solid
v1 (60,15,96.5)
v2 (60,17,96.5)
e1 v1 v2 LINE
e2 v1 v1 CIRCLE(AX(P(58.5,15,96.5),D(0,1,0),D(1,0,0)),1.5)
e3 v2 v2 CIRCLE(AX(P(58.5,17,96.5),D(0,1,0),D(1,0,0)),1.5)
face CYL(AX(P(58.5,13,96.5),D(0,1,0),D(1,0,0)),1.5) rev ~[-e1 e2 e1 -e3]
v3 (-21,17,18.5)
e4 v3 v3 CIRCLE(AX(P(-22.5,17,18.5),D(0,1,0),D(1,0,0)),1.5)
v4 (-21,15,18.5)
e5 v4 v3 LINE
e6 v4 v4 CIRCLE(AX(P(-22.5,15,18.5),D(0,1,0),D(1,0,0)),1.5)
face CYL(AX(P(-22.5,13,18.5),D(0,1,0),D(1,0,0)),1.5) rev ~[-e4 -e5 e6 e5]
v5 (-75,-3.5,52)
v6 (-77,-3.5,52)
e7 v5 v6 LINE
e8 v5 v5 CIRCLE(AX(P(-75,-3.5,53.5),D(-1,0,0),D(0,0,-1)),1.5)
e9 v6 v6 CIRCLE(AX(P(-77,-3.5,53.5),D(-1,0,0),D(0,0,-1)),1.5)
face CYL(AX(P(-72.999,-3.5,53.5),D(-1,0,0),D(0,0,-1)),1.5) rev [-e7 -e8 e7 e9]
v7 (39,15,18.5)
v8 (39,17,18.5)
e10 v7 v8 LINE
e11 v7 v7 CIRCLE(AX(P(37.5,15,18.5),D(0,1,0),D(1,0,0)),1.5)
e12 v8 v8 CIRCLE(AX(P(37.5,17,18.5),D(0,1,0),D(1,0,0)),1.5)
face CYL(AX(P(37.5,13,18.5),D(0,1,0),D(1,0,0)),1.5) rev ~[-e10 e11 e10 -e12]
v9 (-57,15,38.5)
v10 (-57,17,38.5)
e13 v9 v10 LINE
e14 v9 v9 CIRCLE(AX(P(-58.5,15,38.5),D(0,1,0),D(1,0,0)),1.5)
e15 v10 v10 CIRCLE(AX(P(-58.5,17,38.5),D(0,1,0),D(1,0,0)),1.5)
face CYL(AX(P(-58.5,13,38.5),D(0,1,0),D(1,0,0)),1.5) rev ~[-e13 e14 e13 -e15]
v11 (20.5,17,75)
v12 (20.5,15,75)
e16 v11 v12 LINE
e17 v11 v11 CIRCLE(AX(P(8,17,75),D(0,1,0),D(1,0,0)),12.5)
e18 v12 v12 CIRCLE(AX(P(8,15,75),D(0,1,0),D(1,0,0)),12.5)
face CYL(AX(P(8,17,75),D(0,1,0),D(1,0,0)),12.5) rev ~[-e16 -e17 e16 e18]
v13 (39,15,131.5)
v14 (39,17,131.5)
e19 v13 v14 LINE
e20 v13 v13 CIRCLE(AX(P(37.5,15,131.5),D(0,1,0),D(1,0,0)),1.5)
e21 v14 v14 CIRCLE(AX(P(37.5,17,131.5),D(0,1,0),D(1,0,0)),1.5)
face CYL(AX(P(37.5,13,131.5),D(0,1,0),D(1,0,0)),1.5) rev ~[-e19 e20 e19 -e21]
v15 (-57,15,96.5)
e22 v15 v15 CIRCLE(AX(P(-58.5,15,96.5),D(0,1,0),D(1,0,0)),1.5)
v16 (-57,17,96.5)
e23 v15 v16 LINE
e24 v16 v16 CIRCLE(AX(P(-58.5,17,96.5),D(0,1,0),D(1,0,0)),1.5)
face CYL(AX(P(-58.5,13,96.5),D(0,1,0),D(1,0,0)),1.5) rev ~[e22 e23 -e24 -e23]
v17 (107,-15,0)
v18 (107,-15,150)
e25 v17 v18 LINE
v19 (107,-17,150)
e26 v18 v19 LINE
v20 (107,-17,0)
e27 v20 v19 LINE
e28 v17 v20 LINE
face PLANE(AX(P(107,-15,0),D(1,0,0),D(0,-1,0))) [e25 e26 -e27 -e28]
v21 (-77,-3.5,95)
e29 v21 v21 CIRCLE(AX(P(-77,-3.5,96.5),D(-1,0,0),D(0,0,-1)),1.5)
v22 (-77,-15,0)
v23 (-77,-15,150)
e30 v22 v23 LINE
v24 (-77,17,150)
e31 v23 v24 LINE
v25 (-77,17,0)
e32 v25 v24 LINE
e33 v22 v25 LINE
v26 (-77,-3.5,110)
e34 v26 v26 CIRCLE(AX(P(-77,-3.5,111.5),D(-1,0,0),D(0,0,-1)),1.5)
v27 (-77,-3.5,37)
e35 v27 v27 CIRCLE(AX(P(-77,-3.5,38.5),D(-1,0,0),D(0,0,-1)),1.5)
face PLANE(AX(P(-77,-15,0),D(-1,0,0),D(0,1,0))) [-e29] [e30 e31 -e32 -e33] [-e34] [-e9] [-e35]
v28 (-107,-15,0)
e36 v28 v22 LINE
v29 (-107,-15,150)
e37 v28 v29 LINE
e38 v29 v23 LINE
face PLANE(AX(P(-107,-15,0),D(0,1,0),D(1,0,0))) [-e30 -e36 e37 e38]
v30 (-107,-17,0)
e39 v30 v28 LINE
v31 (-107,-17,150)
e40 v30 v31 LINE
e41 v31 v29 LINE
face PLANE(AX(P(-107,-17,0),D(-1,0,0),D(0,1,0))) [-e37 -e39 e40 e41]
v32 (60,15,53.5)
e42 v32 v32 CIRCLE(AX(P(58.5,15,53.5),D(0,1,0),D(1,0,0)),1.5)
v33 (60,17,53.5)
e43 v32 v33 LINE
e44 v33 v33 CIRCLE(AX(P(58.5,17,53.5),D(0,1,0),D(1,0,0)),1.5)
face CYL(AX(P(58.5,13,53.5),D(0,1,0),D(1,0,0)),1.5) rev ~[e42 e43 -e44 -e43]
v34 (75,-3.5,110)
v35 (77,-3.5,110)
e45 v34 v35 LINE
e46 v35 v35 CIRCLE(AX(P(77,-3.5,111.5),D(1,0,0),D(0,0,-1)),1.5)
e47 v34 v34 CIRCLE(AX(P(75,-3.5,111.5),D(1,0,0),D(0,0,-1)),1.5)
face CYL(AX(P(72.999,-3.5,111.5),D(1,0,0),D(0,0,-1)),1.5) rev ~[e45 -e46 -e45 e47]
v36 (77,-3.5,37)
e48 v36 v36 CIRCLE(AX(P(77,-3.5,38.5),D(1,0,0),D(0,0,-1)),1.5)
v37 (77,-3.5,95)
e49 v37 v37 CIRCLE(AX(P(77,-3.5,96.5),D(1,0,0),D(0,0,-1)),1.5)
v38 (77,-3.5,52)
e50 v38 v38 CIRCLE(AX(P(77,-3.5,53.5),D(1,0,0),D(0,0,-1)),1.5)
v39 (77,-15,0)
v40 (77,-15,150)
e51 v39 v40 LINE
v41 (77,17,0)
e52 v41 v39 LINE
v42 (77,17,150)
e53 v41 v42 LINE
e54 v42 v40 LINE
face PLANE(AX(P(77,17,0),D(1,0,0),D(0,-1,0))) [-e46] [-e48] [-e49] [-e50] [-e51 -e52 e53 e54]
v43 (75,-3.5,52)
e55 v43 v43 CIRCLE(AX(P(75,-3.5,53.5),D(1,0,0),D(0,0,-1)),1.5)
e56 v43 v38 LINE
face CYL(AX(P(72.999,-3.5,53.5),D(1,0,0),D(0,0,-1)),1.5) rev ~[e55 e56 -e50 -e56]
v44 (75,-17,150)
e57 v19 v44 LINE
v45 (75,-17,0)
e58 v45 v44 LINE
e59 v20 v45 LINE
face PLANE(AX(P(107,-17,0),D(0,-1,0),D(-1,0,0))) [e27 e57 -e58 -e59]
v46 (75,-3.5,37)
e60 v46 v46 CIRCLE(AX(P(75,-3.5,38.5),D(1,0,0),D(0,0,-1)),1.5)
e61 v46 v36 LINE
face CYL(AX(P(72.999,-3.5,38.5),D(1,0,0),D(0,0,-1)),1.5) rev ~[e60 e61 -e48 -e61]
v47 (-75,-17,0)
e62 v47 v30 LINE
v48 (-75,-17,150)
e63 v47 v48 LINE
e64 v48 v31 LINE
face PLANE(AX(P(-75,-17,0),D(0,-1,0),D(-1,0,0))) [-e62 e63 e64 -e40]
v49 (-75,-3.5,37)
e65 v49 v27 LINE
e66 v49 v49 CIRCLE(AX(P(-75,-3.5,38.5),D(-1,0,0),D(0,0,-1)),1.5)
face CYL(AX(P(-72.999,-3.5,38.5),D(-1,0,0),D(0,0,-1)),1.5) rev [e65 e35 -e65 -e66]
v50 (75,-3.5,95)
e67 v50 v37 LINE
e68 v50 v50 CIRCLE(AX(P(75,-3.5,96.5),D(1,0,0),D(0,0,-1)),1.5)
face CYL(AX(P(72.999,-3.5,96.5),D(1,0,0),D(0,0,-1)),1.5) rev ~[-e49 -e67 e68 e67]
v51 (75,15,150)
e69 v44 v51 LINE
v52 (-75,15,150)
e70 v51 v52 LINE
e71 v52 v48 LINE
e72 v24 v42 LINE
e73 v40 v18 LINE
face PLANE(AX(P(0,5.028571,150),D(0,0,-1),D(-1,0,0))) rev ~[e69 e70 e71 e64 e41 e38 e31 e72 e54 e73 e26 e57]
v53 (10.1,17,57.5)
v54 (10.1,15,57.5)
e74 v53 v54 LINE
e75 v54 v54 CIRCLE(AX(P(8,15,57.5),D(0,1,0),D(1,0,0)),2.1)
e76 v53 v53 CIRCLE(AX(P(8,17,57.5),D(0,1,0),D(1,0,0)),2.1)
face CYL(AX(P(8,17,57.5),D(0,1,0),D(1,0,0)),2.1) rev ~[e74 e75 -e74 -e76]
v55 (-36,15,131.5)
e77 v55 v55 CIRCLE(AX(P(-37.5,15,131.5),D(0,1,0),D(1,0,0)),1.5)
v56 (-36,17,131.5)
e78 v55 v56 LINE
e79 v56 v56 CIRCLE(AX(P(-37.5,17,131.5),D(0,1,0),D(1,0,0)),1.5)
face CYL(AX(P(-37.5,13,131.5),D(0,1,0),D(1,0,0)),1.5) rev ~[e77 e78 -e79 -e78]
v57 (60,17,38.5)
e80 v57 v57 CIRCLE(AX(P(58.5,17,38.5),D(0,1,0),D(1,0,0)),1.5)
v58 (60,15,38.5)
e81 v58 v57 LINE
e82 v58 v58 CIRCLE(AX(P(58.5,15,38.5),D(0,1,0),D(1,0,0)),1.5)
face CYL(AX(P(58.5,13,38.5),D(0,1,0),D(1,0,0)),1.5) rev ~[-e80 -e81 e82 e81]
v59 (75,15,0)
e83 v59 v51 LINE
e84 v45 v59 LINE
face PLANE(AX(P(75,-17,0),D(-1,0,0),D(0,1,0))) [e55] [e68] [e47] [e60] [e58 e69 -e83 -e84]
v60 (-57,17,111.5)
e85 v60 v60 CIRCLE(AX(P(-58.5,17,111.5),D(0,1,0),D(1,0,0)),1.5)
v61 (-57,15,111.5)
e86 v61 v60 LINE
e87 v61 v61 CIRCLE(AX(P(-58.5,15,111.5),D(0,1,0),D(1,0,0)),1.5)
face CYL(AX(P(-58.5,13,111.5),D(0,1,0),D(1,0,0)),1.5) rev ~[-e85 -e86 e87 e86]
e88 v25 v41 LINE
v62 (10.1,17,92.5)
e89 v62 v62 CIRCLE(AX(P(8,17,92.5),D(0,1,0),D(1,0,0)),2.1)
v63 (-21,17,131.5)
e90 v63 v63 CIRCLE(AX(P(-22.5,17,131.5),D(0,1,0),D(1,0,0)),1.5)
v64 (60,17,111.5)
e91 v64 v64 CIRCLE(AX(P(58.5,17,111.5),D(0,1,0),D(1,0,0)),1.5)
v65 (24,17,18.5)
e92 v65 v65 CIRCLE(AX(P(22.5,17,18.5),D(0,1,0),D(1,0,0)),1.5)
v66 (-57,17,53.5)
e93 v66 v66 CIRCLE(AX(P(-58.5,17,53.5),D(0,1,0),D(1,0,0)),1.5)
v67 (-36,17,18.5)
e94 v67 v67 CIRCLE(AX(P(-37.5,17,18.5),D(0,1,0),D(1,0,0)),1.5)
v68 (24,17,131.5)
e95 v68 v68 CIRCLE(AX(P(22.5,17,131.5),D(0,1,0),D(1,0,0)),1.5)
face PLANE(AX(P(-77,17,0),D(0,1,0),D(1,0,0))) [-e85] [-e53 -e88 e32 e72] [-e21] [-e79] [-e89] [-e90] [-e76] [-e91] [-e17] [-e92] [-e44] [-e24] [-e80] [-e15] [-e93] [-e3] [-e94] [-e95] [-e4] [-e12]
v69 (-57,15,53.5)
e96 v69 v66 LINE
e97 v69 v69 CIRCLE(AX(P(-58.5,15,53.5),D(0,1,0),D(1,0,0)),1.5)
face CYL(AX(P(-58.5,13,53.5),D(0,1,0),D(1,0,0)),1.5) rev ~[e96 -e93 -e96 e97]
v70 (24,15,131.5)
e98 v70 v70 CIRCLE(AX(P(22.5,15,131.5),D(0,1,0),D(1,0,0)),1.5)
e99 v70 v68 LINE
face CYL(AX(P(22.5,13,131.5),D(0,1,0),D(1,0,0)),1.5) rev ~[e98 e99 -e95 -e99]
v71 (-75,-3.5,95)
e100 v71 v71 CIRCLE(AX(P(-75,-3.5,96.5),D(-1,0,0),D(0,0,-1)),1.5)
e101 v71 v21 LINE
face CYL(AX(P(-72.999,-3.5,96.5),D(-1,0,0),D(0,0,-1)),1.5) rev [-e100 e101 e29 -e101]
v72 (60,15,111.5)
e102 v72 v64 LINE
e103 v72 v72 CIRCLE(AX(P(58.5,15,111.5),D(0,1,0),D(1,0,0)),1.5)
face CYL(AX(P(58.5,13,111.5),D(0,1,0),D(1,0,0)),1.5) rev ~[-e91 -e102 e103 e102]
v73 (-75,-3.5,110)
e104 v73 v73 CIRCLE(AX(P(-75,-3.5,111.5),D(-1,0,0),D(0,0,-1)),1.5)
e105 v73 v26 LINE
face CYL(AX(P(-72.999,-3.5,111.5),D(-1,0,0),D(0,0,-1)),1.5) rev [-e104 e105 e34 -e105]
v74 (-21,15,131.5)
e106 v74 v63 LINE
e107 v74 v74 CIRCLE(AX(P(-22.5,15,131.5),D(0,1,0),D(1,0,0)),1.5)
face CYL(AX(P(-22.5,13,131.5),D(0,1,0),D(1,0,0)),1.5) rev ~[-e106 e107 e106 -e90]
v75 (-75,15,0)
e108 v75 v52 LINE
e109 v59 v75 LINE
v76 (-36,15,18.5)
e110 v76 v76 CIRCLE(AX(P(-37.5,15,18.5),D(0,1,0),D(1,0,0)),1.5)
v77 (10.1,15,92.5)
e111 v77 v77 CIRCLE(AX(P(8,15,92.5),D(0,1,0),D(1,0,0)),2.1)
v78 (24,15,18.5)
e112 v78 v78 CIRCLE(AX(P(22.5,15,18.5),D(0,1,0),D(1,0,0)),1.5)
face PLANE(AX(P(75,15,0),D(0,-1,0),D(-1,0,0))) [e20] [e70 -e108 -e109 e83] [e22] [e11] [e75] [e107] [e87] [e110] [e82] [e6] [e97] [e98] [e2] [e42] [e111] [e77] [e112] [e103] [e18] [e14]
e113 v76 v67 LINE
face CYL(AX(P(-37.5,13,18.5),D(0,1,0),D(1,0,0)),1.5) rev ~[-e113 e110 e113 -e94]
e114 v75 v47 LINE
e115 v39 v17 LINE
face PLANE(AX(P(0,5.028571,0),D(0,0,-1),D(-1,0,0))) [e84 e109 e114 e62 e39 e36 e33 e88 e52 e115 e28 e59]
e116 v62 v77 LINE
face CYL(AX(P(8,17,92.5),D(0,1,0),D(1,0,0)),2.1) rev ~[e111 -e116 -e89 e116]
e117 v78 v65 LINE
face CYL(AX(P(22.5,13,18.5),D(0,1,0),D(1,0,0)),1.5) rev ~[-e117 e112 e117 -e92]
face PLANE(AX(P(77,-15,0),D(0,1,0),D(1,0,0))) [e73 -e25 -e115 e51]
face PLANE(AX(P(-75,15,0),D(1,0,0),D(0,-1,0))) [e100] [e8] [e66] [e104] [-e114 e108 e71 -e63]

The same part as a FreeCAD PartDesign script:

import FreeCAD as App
import Part
import Sketcher


def add_polygon(sketch, points):
    """Adds a closed chain of lines whose ends are joined by coincident constraints."""
    first, n = sketch.GeometryCount, len(points)
    for a, b in zip(points, points[1:] + points[:1]):
        sketch.addGeometry(Part.LineSegment(App.Vector(*a, 0), App.Vector(*b, 0)), False)
    for i in range(n):
        sketch.addConstraint(Sketcher.Constraint("Coincident", first + i, 2, first + (i + 1) % n, 1))

doc = App.newDocument("Part")
params = doc.addObject("Spreadsheet::Sheet", "Params")
for row, (alias, value) in enumerate([
    ("sketch1_width", "154 mm"),
    ("sketch1_width2", "30 mm"),
    ("sketch1_width3", "32 mm"),
    ("sketch1_height", "2 mm"),
    ("pad1_length", "150 mm"),
    ("sketch2_diameter", "25 mm"),
    ("sketch3_diameter", "4.2 mm"),
    ("sketch4_diameter", "4.2 mm"),
    ("sketch5_diameter", "3 mm"),
    ("hole_diameter", "3 mm"),
    ("hole_depth", "2 mm"),
    ("sketch6_diameter", "3 mm"),
    ("hole2_diameter", "3 mm"),
    ("hole2_depth", "2.001 mm"),
], start=1):
    params.set(f"A{row}", alias)
    params.set(f"B{row}", "=" + value)
    params.setAlias(f"B{row}", alias)

body = doc.addObject("PartDesign::Body", "Body")

# Sketch on XY plane
sketch1 = body.newObject("Sketcher::SketchObject", "Sketch")
sketch1.AttachmentSupport = (doc.getObject("XY_Plane"), [""])
sketch1.MapMode = "FlatFace"
add_polygon(sketch1, [(77, 17), (-77, 17), (-77, -15), (-107, -15), (-107, -17), (-75, -17), (-75, 15), (75, 15), (75, -17), (107, -17), (107, -15), (77, -15)])  # lines 0-11
sketch1.addConstraint(Sketcher.Constraint("Horizontal", 0))
sketch1.addConstraint(Sketcher.Constraint("Vertical", 1))
sketch1.addConstraint(Sketcher.Constraint("Horizontal", 2))
sketch1.addConstraint(Sketcher.Constraint("Vertical", 3))
sketch1.addConstraint(Sketcher.Constraint("Horizontal", 4))
sketch1.addConstraint(Sketcher.Constraint("Vertical", 5))
sketch1.addConstraint(Sketcher.Constraint("Horizontal", 6))
sketch1.addConstraint(Sketcher.Constraint("Vertical", 7))
sketch1.addConstraint(Sketcher.Constraint("Horizontal", 8))
sketch1.addConstraint(Sketcher.Constraint("Vertical", 9))
sketch1.addConstraint(Sketcher.Constraint("Horizontal", 10))
sketch1.addConstraint(Sketcher.Constraint("Vertical", 11))
sketch1.addConstraint(Sketcher.Constraint("Symmetric", 4, 2, 7, 2, -2))
sketch1.addConstraint(Sketcher.Constraint("Symmetric", 2, 2, 9, 2, -2))
sketch1.addConstraint(Sketcher.Constraint("Equal", 2, 10))
sketch1.addConstraint(Sketcher.Constraint("Equal", 8, 1))
sketch1.addConstraint(Sketcher.Constraint("Equal", 1, 5))
sketch1.addConstraint(Sketcher.Constraint("DistanceX", 0, 2, 0, 1, 154.0))
sketch1.addConstraint(Sketcher.Constraint("DistanceX", 2, 2, 2, 1, 30.0))
sketch1.addConstraint(Sketcher.Constraint("DistanceX", 4, 1, 4, 2, 32.0))
sketch1.addConstraint(Sketcher.Constraint("DistanceY", 3, 2, 3, 1, 2.0))
sketch1.addConstraint(Sketcher.Constraint("DistanceY", -1, 1, 0, 2, 17.0))
sketch1.setExpression("Constraints[29]", "Params.sketch1_width")
sketch1.setExpression("Constraints[30]", "Params.sketch1_width2")
sketch1.setExpression("Constraints[31]", "Params.sketch1_width3")
sketch1.setExpression("Constraints[32]", "Params.sketch1_height")
pad1 = body.newObject("PartDesign::Pad", "Pad")
pad1.Profile = sketch1
pad1.setExpression("Length", "Params.pad1_length")

# Sketch on XZ plane
sketch2 = body.newObject("Sketcher::SketchObject", "Sketch001")
sketch2.AttachmentSupport = (doc.getObject("XZ_Plane"), [""])
sketch2.MapMode = "FlatFace"
sketch2.AttachmentOffset = App.Placement(App.Vector(0, 0, -17), App.Rotation())
sketch2.addGeometry(Part.Circle(App.Vector(8, 75, 0), App.Vector(0, 0, 1), 12), False)
sketch2.addConstraint(Sketcher.Constraint("Diameter", 0, 25.0))
sketch2.addConstraint(Sketcher.Constraint("DistanceX", -1, 1, 0, 3, 8.0))
sketch2.addConstraint(Sketcher.Constraint("DistanceY", -1, 1, 0, 3, 75.0))
sketch2.setExpression("Constraints[0]", "Params.sketch2_diameter")
pocket1 = body.newObject("PartDesign::Pocket", "Pocket")
pocket1.Profile = sketch2
pocket1.Type = "UpToFirst"
pocket1.Reversed = True

# Sketch on XZ plane
sketch3 = body.newObject("Sketcher::SketchObject", "Sketch002")
sketch3.AttachmentSupport = (doc.getObject("XZ_Plane"), [""])
sketch3.MapMode = "FlatFace"
sketch3.AttachmentOffset = App.Placement(App.Vector(0, 0, -17), App.Rotation())
sketch3.addGeometry(Part.Circle(App.Vector(8, 57.5, 0), App.Vector(0, 0, 1), 2.1), False)
sketch3.addConstraint(Sketcher.Constraint("Diameter", 0, 4.2))
sketch3.addConstraint(Sketcher.Constraint("DistanceX", -1, 1, 0, 3, 8.0))
sketch3.addConstraint(Sketcher.Constraint("DistanceY", -1, 1, 0, 3, 57.5))
sketch3.setExpression("Constraints[0]", "Params.sketch3_diameter")
pocket2 = body.newObject("PartDesign::Pocket", "Pocket001")
pocket2.Profile = sketch3
pocket2.Type = "UpToFirst"
pocket2.Reversed = True

# Sketch on XZ plane
sketch4 = body.newObject("Sketcher::SketchObject", "Sketch003")
sketch4.AttachmentSupport = (doc.getObject("XZ_Plane"), [""])
sketch4.MapMode = "FlatFace"
sketch4.AttachmentOffset = App.Placement(App.Vector(0, 0, -17), App.Rotation())
sketch4.addGeometry(Part.Circle(App.Vector(8, 92.5, 0), App.Vector(0, 0, 1), 2.1), False)
sketch4.addConstraint(Sketcher.Constraint("Diameter", 0, 4.2))
sketch4.addConstraint(Sketcher.Constraint("DistanceX", -1, 1, 0, 3, 8.0))
sketch4.addConstraint(Sketcher.Constraint("DistanceY", -1, 1, 0, 3, 92.5))
sketch4.setExpression("Constraints[0]", "Params.sketch4_diameter")
pocket3 = body.newObject("PartDesign::Pocket", "Pocket002")
pocket3.Profile = sketch4
pocket3.Type = "UpToFirst"
pocket3.Reversed = True

# Sketch on XZ plane
sketch5 = body.newObject("Sketcher::SketchObject", "Sketch004")
sketch5.AttachmentSupport = (doc.getObject("XZ_Plane"), [""])
sketch5.MapMode = "FlatFace"
sketch5.AttachmentOffset = App.Placement(App.Vector(0, 0, -15), App.Rotation())
sketch5.addGeometry(Part.Circle(App.Vector(-58.5, 111.5, 0), App.Vector(0, 0, 1), 1.5), False)
sketch5.addGeometry(Part.Circle(App.Vector(-58.5, 96.5, 0), App.Vector(0, 0, 1), 1.5), False)
sketch5.addGeometry(Part.Circle(App.Vector(-37.5, 131.5, 0), App.Vector(0, 0, 1), 1.5), False)
sketch5.addGeometry(Part.Circle(App.Vector(-22.5, 131.5, 0), App.Vector(0, 0, 1), 1.5), False)
sketch5.addGeometry(Part.Circle(App.Vector(22.5, 131.5, 0), App.Vector(0, 0, 1), 1.5), False)
sketch5.addGeometry(Part.Circle(App.Vector(37.5, 131.5, 0), App.Vector(0, 0, 1), 1.5), False)
sketch5.addGeometry(Part.Circle(App.Vector(58.5, 111.5, 0), App.Vector(0, 0, 1), 1.5), False)
sketch5.addGeometry(Part.Circle(App.Vector(58.5, 96.5, 0), App.Vector(0, 0, 1), 1.5), False)
sketch5.addGeometry(Part.Circle(App.Vector(58.5, 53.5, 0), App.Vector(0, 0, 1), 1.5), False)
sketch5.addGeometry(Part.Circle(App.Vector(58.5, 38.5, 0), App.Vector(0, 0, 1), 1.5), False)
sketch5.addGeometry(Part.Circle(App.Vector(37.5, 18.5, 0), App.Vector(0, 0, 1), 1.5), False)
sketch5.addGeometry(Part.Circle(App.Vector(22.5, 18.5, 0), App.Vector(0, 0, 1), 1.5), False)
sketch5.addGeometry(Part.Circle(App.Vector(-22.5, 18.5, 0), App.Vector(0, 0, 1), 1.5), False)
sketch5.addGeometry(Part.Circle(App.Vector(-37.5, 18.5, 0), App.Vector(0, 0, 1), 1.5), False)
sketch5.addGeometry(Part.Circle(App.Vector(-58.5, 53.5, 0), App.Vector(0, 0, 1), 1.5), False)
sketch5.addGeometry(Part.Circle(App.Vector(-58.5, 38.5, 0), App.Vector(0, 0, 1), 1.5), False)
sketch5.addConstraint(Sketcher.Constraint("Equal", 0, 1))
sketch5.addConstraint(Sketcher.Constraint("Equal", 1, 2))
sketch5.addConstraint(Sketcher.Constraint("Equal", 2, 3))
sketch5.addConstraint(Sketcher.Constraint("Equal", 3, 4))
sketch5.addConstraint(Sketcher.Constraint("Equal", 4, 5))
sketch5.addConstraint(Sketcher.Constraint("Equal", 5, 6))
sketch5.addConstraint(Sketcher.Constraint("Equal", 6, 7))
sketch5.addConstraint(Sketcher.Constraint("Equal", 7, 8))
sketch5.addConstraint(Sketcher.Constraint("Equal", 8, 9))
sketch5.addConstraint(Sketcher.Constraint("Equal", 9, 10))
sketch5.addConstraint(Sketcher.Constraint("Equal", 10, 11))
sketch5.addConstraint(Sketcher.Constraint("Equal", 11, 12))
sketch5.addConstraint(Sketcher.Constraint("Equal", 12, 13))
sketch5.addConstraint(Sketcher.Constraint("Equal", 13, 14))
sketch5.addConstraint(Sketcher.Constraint("Equal", 14, 15))
sketch5.addConstraint(Sketcher.Constraint("Symmetric", 3, 3, 4, 3, -2))
sketch5.addConstraint(Sketcher.Constraint("Symmetric", 2, 3, 5, 3, -2))
sketch5.addConstraint(Sketcher.Constraint("Symmetric", 0, 3, 6, 3, -2))
sketch5.addConstraint(Sketcher.Constraint("Symmetric", 1, 3, 7, 3, -2))
sketch5.addConstraint(Sketcher.Constraint("Symmetric", 11, 3, 12, 3, -2))
sketch5.addConstraint(Sketcher.Constraint("Symmetric", 10, 3, 13, 3, -2))
sketch5.addConstraint(Sketcher.Constraint("Symmetric", 8, 3, 14, 3, -2))
sketch5.addConstraint(Sketcher.Constraint("Symmetric", 9, 3, 15, 3, -2))
sketch5.addConstraint(Sketcher.Constraint("Horizontal", 2, 3, 3, 3))
sketch5.addConstraint(Sketcher.Constraint("Horizontal", 10, 3, 11, 3))
sketch5.addConstraint(Sketcher.Constraint("Vertical", 0, 3, 1, 3))
sketch5.addConstraint(Sketcher.Constraint("Vertical", 7, 3, 8, 3))
sketch5.addConstraint(Sketcher.Constraint("Vertical", 8, 3, 9, 3))
sketch5.addConstraint(Sketcher.Constraint("Vertical", 5, 3, 10, 3))
sketch5.addConstraint(Sketcher.Constraint("Vertical", 4, 3, 11, 3))
sketch5.addConstraint(Sketcher.Constraint("Diameter", 0, 3.0))
sketch5.addConstraint(Sketcher.Constraint("DistanceY", 1, 3, 0, 3, 15.0))
sketch5.addConstraint(Sketcher.Constraint("DistanceX", 0, 3, 2, 3, 21.0))
sketch5.addConstraint(Sketcher.Constraint("DistanceY", 0, 3, 2, 3, 20.0))
sketch5.addConstraint(Sketcher.Constraint("DistanceX", 2, 3, 3, 3, 15.0))
sketch5.addConstraint(Sketcher.Constraint("DistanceX", 3, 3, 4, 3, 45.0))
sketch5.addConstraint(Sketcher.Constraint("DistanceY", 8, 3, 7, 3, 43.0))
sketch5.addConstraint(Sketcher.Constraint("DistanceY", 9, 3, 8, 3, 15.0))
sketch5.addConstraint(Sketcher.Constraint("DistanceY", 10, 3, 9, 3, 20.0))
sketch5.addConstraint(Sketcher.Constraint("DistanceY", -1, 1, 0, 3, 111.5))
sketch5.setExpression("Constraints[30]", "Params.sketch5_diameter")
doc.recompute()
hole = body.newObject("PartDesign::Hole", "Hole")
hole.Profile = sketch5
hole.ThreadType = "None"
hole.setExpression("Diameter", "Params.hole_diameter")
hole.DepthType = "Dimension"
hole.setExpression("Depth", "Params.hole_depth")
hole.DrillPoint = "Flat"

# Sketch on YZ plane
sketch6 = body.newObject("Sketcher::SketchObject", "Sketch005")
sketch6.AttachmentSupport = (doc.getObject("YZ_Plane"), [""])
sketch6.MapMode = "FlatFace"
sketch6.AttachmentOffset = App.Placement(App.Vector(0, 0, 75), App.Rotation())
sketch6.addGeometry(Part.Circle(App.Vector(-3.5, 38.5, 0), App.Vector(0, 0, 1), 1.5), False)
sketch6.addGeometry(Part.Circle(App.Vector(-3.5, 53.5, 0), App.Vector(0, 0, 1), 1.5), False)
sketch6.addGeometry(Part.Circle(App.Vector(-3.5, 96.5, 0), App.Vector(0, 0, 1), 1.5), False)
sketch6.addGeometry(Part.Circle(App.Vector(-3.5, 111.5, 0), App.Vector(0, 0, 1), 1.5), False)
sketch6.addConstraint(Sketcher.Constraint("Equal", 0, 1))
sketch6.addConstraint(Sketcher.Constraint("Equal", 1, 2))
sketch6.addConstraint(Sketcher.Constraint("Equal", 2, 3))
sketch6.addConstraint(Sketcher.Constraint("Vertical", 0, 3, 1, 3))
sketch6.addConstraint(Sketcher.Constraint("Vertical", 1, 3, 2, 3))
sketch6.addConstraint(Sketcher.Constraint("Vertical", 2, 3, 3, 3))
sketch6.addConstraint(Sketcher.Constraint("Diameter", 0, 3.0))
sketch6.addConstraint(Sketcher.Constraint("DistanceY", 0, 3, 1, 3, 15.0))
sketch6.addConstraint(Sketcher.Constraint("DistanceY", 1, 3, 2, 3, 43.0))
sketch6.addConstraint(Sketcher.Constraint("DistanceY", 2, 3, 3, 3, 15.0))
sketch6.addConstraint(Sketcher.Constraint("DistanceX", 0, 3, -1, 1, 3.5))
sketch6.addConstraint(Sketcher.Constraint("DistanceY", -1, 1, 0, 3, 38.5))
sketch6.setExpression("Constraints[6]", "Params.sketch6_diameter")
doc.recompute()
hole2 = body.newObject("PartDesign::Hole", "Hole001")
hole2.Profile = sketch6
hole2.ThreadType = "None"
hole2.setExpression("Diameter", "Params.hole2_diameter")
hole2.DepthType = "Dimension"
hole2.setExpression("Depth", "Params.hole2_depth")
hole2.DrillPoint = "Flat"
hole2.Reversed = True
doc.recompute()

mirrored = body.newObject("PartDesign::Mirrored", "Mirrored")
mirrored.Originals = [hole2]
mirrored.MirrorPlane = (doc.getObject("YZ_Plane"), [""])
body.Tip = mirrored

doc.recompute()
